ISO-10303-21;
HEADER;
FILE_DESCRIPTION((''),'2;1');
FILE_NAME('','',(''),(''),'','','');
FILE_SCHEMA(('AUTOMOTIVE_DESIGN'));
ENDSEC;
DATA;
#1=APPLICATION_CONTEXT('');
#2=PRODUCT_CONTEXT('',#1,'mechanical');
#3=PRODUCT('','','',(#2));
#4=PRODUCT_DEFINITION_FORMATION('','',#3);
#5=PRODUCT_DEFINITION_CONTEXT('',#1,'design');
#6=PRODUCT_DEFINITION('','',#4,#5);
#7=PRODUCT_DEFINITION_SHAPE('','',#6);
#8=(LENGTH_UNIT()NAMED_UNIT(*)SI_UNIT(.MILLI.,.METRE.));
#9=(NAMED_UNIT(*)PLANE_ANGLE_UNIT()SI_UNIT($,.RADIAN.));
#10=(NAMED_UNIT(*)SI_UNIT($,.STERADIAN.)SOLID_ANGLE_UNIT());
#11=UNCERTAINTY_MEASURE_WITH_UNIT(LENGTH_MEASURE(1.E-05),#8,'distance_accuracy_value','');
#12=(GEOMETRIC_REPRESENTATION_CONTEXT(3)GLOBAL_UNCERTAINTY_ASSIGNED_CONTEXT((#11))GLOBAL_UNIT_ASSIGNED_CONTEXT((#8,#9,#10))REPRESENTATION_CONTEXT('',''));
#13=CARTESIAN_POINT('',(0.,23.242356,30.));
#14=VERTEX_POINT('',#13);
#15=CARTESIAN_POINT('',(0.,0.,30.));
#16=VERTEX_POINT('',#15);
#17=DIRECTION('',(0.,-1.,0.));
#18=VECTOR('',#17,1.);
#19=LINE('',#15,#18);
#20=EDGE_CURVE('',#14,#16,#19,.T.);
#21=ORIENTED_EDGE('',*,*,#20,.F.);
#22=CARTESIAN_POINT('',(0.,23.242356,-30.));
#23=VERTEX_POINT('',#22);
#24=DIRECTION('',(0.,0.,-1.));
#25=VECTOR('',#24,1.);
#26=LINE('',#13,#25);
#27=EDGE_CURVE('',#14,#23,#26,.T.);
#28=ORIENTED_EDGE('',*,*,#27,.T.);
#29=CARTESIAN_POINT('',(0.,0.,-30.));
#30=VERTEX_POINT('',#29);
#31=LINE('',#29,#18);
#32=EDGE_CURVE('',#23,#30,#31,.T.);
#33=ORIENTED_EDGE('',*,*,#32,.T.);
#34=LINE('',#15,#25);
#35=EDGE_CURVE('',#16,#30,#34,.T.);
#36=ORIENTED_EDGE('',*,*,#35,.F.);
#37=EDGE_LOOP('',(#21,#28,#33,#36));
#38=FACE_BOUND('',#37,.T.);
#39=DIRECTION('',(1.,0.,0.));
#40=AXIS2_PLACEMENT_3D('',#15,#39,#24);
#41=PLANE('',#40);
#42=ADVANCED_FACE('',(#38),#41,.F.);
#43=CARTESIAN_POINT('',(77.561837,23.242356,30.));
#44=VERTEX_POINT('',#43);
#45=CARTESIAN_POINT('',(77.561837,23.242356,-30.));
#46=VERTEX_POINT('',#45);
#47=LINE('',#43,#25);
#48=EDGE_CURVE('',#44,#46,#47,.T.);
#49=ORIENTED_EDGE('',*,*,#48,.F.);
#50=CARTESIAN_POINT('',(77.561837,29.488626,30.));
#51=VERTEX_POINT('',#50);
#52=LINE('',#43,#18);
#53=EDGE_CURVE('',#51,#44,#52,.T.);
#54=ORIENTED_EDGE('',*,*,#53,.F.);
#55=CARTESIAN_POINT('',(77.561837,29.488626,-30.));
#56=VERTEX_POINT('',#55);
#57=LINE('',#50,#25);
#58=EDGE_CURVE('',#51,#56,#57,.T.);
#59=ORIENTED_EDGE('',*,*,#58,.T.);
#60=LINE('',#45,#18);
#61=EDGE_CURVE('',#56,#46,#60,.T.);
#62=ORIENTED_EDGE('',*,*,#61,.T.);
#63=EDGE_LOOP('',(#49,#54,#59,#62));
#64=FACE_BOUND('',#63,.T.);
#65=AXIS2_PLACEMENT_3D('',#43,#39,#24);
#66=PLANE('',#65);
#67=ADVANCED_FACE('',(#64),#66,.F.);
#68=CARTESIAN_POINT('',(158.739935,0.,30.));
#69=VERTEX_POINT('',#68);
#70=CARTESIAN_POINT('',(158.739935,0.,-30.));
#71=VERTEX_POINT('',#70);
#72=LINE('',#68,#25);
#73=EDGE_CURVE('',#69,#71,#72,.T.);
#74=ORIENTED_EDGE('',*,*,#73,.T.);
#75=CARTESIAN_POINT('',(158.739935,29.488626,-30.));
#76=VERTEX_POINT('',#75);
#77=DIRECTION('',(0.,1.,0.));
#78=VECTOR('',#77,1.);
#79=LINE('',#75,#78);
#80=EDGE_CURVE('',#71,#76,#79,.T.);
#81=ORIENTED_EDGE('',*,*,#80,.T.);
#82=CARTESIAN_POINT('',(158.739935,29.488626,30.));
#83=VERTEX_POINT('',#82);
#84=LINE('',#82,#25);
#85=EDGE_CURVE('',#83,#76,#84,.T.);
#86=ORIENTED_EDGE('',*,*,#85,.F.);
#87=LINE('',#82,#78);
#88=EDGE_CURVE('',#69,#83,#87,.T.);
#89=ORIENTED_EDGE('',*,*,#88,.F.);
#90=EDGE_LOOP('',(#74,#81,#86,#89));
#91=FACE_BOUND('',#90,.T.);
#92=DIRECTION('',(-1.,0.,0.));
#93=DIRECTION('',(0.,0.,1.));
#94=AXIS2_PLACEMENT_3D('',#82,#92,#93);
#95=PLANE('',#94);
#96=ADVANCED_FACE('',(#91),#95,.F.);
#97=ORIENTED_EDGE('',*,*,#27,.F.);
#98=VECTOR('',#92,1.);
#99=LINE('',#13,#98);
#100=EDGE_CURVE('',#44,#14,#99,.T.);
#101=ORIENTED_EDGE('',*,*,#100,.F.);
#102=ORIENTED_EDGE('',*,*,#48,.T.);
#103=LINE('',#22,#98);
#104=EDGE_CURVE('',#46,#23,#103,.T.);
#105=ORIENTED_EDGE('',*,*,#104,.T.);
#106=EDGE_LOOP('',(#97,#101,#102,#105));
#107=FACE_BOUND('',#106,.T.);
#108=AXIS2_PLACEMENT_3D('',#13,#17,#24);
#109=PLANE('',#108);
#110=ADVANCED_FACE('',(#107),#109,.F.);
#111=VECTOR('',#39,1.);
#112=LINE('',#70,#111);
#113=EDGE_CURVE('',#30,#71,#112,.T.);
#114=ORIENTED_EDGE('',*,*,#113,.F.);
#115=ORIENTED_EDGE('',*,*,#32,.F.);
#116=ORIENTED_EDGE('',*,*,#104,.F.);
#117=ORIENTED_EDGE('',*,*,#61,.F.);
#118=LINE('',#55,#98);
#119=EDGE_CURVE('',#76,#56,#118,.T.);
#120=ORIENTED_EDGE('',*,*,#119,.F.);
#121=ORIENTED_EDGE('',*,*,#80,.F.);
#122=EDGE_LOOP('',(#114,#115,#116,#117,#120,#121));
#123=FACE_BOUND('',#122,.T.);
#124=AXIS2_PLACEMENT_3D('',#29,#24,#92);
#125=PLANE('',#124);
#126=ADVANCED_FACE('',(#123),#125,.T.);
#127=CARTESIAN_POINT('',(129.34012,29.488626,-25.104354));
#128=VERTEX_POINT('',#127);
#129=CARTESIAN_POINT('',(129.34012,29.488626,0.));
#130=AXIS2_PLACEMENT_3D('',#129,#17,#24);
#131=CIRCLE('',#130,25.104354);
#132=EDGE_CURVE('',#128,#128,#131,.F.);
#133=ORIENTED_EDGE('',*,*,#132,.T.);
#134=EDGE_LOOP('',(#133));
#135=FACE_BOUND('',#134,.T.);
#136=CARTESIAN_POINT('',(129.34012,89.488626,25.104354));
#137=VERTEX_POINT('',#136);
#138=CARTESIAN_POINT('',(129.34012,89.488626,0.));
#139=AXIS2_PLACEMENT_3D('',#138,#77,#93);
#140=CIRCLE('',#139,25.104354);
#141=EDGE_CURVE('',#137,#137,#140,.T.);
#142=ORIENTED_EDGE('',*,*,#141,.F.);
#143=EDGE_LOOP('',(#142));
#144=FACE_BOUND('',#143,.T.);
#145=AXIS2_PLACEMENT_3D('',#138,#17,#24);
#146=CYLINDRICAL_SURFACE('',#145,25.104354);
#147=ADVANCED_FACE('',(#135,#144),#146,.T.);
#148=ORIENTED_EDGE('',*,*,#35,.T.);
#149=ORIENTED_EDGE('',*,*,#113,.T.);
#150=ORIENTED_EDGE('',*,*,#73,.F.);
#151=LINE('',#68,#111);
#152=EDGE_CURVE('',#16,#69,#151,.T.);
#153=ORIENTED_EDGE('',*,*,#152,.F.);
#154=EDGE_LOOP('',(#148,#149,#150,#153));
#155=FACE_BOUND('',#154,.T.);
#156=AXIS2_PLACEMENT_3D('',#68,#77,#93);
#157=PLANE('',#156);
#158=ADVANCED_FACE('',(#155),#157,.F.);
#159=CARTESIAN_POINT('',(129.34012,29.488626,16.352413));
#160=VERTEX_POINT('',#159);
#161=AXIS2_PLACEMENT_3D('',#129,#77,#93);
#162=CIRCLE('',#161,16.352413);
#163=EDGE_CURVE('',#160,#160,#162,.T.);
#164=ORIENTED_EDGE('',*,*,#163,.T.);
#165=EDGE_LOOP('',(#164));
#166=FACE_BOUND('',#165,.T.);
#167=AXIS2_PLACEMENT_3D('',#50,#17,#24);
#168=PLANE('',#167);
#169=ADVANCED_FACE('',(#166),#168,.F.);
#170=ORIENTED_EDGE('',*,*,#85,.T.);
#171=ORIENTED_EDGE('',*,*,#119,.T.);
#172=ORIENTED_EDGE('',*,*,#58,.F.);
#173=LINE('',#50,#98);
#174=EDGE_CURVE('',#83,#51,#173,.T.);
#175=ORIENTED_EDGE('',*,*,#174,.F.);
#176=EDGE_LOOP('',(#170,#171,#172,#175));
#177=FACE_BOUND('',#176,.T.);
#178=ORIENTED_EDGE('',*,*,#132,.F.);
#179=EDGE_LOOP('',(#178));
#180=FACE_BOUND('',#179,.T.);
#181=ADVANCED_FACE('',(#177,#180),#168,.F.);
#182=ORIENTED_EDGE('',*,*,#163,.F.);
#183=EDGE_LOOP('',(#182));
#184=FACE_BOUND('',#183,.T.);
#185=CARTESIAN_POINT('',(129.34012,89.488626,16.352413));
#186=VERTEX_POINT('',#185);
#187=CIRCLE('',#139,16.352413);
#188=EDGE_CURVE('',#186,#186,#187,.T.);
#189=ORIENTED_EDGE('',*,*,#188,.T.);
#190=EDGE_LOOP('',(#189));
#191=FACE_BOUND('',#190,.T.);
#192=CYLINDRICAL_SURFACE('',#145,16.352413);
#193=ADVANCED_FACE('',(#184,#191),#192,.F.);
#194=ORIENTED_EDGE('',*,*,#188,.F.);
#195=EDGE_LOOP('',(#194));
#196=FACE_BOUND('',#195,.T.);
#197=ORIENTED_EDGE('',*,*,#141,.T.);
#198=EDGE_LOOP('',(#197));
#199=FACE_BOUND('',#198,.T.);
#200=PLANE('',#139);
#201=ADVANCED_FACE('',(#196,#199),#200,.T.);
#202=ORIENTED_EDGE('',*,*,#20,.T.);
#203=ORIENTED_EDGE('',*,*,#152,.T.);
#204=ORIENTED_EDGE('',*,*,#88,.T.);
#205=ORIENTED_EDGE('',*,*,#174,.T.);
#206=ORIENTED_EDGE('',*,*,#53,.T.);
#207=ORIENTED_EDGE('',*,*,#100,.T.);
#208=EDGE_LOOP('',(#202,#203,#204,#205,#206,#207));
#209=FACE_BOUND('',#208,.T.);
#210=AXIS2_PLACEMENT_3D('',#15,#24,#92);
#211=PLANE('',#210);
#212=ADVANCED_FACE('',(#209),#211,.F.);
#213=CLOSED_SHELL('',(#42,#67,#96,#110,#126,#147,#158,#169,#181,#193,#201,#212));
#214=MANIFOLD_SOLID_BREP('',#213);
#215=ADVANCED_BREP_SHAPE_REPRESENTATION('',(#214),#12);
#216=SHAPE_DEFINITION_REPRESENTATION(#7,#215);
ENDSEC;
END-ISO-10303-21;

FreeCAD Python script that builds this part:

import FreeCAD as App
import Part
import Sketcher
from FreeCAD import Vector
Q = App.Units.Quantity

doc = App.newDocument("Part")
body = doc.addObject("PartDesign::Body", "Body")

sketch1 = body.newObject("Sketcher::SketchObject", "Sketch")
sketch1.AttachmentSupport = (doc.getObject("XY_Plane"), [""])
sketch1.MapMode = "FlatFace"
sketch1.addGeometry([
    Part.LineSegment(Vector(0, 23, 0), Vector(0, 0, 0)),
    Part.LineSegment(Vector(0, 0, 0), Vector(159, 0, 0)),
    Part.LineSegment(Vector(159, 0, 0), Vector(159, 29, 0)),
    Part.LineSegment(Vector(159, 29, 0), Vector(78, 29, 0)),
    Part.LineSegment(Vector(78, 29, 0), Vector(78, 23, 0)),
    Part.LineSegment(Vector(78, 23, 0), Vector(0, 23, 0)),
], False)
sketch1.addConstraint([
    Sketcher.Constraint("Coincident", 0, 2, 1, 1),
    Sketcher.Constraint("Coincident", 1, 2, 2, 1),
    Sketcher.Constraint("Coincident", 2, 2, 3, 1),
    Sketcher.Constraint("Coincident", 3, 2, 4, 1),
    Sketcher.Constraint("Coincident", 4, 2, 5, 1),
    Sketcher.Constraint("Coincident", 5, 2, 0, 1),
    Sketcher.Constraint("Vertical", 0),
    Sketcher.Constraint("Horizontal", 1),
    Sketcher.Constraint("Vertical", 2),
    Sketcher.Constraint("Horizontal", 3),
    Sketcher.Constraint("Vertical", 4),
    Sketcher.Constraint("Horizontal", 5),
    Sketcher.Constraint("Coincident", 0, 2, -1, 1),
    Sketcher.Constraint("DistanceY", 4, 2, 4, 1, Q("6.246269 mm")),
    Sketcher.Constraint("DistanceX", 1, 1, 1, 2, Q("158.739935 mm")),
    Sketcher.Constraint("DistanceX", 3, 2, 3, 1, Q("81.178098 mm")),
    Sketcher.Constraint("DistanceY", 0, 2, 0, 1, Q("23.242356 mm")),
])
pad1 = body.newObject("PartDesign::Pad", "Pad")
pad1.Profile = sketch1
pad1.Length = 60
pad1.Midplane = True

sketch2 = body.newObject("Sketcher::SketchObject", "Sketch001")
sketch2.AttachmentSupport = (doc.getObject("XZ_Plane"), [""])
sketch2.MapMode = "FlatFace"
sketch2.AttachmentOffset = App.Placement(Vector(0, 0, -29.488626), App.Rotation())
sketch2.addGeometry([
    Part.Circle(Vector(129, 0, 0), Vector(0, 0, 1), 25),
    Part.Circle(Vector(129, 0, 0), Vector(0, 0, 1), 16),
], False)
sketch2.addConstraint([
    Sketcher.Constraint("Coincident", 1, 3, 0, 3),
    Sketcher.Constraint("PointOnObject", 0, 3, -1),
    Sketcher.Constraint("Diameter", 0, Q("50.208707 mm")),
    Sketcher.Constraint("Diameter", 1, Q("32.704826 mm")),
    Sketcher.Constraint("DistanceX", -1, 1, 0, 3, Q("129.34012 mm")),
])
pad2 = body.newObject("PartDesign::Pad", "Pad001")
pad2.Profile = sketch2
pad2.Length = 60
pad2.Reversed = True

doc.recompute()
